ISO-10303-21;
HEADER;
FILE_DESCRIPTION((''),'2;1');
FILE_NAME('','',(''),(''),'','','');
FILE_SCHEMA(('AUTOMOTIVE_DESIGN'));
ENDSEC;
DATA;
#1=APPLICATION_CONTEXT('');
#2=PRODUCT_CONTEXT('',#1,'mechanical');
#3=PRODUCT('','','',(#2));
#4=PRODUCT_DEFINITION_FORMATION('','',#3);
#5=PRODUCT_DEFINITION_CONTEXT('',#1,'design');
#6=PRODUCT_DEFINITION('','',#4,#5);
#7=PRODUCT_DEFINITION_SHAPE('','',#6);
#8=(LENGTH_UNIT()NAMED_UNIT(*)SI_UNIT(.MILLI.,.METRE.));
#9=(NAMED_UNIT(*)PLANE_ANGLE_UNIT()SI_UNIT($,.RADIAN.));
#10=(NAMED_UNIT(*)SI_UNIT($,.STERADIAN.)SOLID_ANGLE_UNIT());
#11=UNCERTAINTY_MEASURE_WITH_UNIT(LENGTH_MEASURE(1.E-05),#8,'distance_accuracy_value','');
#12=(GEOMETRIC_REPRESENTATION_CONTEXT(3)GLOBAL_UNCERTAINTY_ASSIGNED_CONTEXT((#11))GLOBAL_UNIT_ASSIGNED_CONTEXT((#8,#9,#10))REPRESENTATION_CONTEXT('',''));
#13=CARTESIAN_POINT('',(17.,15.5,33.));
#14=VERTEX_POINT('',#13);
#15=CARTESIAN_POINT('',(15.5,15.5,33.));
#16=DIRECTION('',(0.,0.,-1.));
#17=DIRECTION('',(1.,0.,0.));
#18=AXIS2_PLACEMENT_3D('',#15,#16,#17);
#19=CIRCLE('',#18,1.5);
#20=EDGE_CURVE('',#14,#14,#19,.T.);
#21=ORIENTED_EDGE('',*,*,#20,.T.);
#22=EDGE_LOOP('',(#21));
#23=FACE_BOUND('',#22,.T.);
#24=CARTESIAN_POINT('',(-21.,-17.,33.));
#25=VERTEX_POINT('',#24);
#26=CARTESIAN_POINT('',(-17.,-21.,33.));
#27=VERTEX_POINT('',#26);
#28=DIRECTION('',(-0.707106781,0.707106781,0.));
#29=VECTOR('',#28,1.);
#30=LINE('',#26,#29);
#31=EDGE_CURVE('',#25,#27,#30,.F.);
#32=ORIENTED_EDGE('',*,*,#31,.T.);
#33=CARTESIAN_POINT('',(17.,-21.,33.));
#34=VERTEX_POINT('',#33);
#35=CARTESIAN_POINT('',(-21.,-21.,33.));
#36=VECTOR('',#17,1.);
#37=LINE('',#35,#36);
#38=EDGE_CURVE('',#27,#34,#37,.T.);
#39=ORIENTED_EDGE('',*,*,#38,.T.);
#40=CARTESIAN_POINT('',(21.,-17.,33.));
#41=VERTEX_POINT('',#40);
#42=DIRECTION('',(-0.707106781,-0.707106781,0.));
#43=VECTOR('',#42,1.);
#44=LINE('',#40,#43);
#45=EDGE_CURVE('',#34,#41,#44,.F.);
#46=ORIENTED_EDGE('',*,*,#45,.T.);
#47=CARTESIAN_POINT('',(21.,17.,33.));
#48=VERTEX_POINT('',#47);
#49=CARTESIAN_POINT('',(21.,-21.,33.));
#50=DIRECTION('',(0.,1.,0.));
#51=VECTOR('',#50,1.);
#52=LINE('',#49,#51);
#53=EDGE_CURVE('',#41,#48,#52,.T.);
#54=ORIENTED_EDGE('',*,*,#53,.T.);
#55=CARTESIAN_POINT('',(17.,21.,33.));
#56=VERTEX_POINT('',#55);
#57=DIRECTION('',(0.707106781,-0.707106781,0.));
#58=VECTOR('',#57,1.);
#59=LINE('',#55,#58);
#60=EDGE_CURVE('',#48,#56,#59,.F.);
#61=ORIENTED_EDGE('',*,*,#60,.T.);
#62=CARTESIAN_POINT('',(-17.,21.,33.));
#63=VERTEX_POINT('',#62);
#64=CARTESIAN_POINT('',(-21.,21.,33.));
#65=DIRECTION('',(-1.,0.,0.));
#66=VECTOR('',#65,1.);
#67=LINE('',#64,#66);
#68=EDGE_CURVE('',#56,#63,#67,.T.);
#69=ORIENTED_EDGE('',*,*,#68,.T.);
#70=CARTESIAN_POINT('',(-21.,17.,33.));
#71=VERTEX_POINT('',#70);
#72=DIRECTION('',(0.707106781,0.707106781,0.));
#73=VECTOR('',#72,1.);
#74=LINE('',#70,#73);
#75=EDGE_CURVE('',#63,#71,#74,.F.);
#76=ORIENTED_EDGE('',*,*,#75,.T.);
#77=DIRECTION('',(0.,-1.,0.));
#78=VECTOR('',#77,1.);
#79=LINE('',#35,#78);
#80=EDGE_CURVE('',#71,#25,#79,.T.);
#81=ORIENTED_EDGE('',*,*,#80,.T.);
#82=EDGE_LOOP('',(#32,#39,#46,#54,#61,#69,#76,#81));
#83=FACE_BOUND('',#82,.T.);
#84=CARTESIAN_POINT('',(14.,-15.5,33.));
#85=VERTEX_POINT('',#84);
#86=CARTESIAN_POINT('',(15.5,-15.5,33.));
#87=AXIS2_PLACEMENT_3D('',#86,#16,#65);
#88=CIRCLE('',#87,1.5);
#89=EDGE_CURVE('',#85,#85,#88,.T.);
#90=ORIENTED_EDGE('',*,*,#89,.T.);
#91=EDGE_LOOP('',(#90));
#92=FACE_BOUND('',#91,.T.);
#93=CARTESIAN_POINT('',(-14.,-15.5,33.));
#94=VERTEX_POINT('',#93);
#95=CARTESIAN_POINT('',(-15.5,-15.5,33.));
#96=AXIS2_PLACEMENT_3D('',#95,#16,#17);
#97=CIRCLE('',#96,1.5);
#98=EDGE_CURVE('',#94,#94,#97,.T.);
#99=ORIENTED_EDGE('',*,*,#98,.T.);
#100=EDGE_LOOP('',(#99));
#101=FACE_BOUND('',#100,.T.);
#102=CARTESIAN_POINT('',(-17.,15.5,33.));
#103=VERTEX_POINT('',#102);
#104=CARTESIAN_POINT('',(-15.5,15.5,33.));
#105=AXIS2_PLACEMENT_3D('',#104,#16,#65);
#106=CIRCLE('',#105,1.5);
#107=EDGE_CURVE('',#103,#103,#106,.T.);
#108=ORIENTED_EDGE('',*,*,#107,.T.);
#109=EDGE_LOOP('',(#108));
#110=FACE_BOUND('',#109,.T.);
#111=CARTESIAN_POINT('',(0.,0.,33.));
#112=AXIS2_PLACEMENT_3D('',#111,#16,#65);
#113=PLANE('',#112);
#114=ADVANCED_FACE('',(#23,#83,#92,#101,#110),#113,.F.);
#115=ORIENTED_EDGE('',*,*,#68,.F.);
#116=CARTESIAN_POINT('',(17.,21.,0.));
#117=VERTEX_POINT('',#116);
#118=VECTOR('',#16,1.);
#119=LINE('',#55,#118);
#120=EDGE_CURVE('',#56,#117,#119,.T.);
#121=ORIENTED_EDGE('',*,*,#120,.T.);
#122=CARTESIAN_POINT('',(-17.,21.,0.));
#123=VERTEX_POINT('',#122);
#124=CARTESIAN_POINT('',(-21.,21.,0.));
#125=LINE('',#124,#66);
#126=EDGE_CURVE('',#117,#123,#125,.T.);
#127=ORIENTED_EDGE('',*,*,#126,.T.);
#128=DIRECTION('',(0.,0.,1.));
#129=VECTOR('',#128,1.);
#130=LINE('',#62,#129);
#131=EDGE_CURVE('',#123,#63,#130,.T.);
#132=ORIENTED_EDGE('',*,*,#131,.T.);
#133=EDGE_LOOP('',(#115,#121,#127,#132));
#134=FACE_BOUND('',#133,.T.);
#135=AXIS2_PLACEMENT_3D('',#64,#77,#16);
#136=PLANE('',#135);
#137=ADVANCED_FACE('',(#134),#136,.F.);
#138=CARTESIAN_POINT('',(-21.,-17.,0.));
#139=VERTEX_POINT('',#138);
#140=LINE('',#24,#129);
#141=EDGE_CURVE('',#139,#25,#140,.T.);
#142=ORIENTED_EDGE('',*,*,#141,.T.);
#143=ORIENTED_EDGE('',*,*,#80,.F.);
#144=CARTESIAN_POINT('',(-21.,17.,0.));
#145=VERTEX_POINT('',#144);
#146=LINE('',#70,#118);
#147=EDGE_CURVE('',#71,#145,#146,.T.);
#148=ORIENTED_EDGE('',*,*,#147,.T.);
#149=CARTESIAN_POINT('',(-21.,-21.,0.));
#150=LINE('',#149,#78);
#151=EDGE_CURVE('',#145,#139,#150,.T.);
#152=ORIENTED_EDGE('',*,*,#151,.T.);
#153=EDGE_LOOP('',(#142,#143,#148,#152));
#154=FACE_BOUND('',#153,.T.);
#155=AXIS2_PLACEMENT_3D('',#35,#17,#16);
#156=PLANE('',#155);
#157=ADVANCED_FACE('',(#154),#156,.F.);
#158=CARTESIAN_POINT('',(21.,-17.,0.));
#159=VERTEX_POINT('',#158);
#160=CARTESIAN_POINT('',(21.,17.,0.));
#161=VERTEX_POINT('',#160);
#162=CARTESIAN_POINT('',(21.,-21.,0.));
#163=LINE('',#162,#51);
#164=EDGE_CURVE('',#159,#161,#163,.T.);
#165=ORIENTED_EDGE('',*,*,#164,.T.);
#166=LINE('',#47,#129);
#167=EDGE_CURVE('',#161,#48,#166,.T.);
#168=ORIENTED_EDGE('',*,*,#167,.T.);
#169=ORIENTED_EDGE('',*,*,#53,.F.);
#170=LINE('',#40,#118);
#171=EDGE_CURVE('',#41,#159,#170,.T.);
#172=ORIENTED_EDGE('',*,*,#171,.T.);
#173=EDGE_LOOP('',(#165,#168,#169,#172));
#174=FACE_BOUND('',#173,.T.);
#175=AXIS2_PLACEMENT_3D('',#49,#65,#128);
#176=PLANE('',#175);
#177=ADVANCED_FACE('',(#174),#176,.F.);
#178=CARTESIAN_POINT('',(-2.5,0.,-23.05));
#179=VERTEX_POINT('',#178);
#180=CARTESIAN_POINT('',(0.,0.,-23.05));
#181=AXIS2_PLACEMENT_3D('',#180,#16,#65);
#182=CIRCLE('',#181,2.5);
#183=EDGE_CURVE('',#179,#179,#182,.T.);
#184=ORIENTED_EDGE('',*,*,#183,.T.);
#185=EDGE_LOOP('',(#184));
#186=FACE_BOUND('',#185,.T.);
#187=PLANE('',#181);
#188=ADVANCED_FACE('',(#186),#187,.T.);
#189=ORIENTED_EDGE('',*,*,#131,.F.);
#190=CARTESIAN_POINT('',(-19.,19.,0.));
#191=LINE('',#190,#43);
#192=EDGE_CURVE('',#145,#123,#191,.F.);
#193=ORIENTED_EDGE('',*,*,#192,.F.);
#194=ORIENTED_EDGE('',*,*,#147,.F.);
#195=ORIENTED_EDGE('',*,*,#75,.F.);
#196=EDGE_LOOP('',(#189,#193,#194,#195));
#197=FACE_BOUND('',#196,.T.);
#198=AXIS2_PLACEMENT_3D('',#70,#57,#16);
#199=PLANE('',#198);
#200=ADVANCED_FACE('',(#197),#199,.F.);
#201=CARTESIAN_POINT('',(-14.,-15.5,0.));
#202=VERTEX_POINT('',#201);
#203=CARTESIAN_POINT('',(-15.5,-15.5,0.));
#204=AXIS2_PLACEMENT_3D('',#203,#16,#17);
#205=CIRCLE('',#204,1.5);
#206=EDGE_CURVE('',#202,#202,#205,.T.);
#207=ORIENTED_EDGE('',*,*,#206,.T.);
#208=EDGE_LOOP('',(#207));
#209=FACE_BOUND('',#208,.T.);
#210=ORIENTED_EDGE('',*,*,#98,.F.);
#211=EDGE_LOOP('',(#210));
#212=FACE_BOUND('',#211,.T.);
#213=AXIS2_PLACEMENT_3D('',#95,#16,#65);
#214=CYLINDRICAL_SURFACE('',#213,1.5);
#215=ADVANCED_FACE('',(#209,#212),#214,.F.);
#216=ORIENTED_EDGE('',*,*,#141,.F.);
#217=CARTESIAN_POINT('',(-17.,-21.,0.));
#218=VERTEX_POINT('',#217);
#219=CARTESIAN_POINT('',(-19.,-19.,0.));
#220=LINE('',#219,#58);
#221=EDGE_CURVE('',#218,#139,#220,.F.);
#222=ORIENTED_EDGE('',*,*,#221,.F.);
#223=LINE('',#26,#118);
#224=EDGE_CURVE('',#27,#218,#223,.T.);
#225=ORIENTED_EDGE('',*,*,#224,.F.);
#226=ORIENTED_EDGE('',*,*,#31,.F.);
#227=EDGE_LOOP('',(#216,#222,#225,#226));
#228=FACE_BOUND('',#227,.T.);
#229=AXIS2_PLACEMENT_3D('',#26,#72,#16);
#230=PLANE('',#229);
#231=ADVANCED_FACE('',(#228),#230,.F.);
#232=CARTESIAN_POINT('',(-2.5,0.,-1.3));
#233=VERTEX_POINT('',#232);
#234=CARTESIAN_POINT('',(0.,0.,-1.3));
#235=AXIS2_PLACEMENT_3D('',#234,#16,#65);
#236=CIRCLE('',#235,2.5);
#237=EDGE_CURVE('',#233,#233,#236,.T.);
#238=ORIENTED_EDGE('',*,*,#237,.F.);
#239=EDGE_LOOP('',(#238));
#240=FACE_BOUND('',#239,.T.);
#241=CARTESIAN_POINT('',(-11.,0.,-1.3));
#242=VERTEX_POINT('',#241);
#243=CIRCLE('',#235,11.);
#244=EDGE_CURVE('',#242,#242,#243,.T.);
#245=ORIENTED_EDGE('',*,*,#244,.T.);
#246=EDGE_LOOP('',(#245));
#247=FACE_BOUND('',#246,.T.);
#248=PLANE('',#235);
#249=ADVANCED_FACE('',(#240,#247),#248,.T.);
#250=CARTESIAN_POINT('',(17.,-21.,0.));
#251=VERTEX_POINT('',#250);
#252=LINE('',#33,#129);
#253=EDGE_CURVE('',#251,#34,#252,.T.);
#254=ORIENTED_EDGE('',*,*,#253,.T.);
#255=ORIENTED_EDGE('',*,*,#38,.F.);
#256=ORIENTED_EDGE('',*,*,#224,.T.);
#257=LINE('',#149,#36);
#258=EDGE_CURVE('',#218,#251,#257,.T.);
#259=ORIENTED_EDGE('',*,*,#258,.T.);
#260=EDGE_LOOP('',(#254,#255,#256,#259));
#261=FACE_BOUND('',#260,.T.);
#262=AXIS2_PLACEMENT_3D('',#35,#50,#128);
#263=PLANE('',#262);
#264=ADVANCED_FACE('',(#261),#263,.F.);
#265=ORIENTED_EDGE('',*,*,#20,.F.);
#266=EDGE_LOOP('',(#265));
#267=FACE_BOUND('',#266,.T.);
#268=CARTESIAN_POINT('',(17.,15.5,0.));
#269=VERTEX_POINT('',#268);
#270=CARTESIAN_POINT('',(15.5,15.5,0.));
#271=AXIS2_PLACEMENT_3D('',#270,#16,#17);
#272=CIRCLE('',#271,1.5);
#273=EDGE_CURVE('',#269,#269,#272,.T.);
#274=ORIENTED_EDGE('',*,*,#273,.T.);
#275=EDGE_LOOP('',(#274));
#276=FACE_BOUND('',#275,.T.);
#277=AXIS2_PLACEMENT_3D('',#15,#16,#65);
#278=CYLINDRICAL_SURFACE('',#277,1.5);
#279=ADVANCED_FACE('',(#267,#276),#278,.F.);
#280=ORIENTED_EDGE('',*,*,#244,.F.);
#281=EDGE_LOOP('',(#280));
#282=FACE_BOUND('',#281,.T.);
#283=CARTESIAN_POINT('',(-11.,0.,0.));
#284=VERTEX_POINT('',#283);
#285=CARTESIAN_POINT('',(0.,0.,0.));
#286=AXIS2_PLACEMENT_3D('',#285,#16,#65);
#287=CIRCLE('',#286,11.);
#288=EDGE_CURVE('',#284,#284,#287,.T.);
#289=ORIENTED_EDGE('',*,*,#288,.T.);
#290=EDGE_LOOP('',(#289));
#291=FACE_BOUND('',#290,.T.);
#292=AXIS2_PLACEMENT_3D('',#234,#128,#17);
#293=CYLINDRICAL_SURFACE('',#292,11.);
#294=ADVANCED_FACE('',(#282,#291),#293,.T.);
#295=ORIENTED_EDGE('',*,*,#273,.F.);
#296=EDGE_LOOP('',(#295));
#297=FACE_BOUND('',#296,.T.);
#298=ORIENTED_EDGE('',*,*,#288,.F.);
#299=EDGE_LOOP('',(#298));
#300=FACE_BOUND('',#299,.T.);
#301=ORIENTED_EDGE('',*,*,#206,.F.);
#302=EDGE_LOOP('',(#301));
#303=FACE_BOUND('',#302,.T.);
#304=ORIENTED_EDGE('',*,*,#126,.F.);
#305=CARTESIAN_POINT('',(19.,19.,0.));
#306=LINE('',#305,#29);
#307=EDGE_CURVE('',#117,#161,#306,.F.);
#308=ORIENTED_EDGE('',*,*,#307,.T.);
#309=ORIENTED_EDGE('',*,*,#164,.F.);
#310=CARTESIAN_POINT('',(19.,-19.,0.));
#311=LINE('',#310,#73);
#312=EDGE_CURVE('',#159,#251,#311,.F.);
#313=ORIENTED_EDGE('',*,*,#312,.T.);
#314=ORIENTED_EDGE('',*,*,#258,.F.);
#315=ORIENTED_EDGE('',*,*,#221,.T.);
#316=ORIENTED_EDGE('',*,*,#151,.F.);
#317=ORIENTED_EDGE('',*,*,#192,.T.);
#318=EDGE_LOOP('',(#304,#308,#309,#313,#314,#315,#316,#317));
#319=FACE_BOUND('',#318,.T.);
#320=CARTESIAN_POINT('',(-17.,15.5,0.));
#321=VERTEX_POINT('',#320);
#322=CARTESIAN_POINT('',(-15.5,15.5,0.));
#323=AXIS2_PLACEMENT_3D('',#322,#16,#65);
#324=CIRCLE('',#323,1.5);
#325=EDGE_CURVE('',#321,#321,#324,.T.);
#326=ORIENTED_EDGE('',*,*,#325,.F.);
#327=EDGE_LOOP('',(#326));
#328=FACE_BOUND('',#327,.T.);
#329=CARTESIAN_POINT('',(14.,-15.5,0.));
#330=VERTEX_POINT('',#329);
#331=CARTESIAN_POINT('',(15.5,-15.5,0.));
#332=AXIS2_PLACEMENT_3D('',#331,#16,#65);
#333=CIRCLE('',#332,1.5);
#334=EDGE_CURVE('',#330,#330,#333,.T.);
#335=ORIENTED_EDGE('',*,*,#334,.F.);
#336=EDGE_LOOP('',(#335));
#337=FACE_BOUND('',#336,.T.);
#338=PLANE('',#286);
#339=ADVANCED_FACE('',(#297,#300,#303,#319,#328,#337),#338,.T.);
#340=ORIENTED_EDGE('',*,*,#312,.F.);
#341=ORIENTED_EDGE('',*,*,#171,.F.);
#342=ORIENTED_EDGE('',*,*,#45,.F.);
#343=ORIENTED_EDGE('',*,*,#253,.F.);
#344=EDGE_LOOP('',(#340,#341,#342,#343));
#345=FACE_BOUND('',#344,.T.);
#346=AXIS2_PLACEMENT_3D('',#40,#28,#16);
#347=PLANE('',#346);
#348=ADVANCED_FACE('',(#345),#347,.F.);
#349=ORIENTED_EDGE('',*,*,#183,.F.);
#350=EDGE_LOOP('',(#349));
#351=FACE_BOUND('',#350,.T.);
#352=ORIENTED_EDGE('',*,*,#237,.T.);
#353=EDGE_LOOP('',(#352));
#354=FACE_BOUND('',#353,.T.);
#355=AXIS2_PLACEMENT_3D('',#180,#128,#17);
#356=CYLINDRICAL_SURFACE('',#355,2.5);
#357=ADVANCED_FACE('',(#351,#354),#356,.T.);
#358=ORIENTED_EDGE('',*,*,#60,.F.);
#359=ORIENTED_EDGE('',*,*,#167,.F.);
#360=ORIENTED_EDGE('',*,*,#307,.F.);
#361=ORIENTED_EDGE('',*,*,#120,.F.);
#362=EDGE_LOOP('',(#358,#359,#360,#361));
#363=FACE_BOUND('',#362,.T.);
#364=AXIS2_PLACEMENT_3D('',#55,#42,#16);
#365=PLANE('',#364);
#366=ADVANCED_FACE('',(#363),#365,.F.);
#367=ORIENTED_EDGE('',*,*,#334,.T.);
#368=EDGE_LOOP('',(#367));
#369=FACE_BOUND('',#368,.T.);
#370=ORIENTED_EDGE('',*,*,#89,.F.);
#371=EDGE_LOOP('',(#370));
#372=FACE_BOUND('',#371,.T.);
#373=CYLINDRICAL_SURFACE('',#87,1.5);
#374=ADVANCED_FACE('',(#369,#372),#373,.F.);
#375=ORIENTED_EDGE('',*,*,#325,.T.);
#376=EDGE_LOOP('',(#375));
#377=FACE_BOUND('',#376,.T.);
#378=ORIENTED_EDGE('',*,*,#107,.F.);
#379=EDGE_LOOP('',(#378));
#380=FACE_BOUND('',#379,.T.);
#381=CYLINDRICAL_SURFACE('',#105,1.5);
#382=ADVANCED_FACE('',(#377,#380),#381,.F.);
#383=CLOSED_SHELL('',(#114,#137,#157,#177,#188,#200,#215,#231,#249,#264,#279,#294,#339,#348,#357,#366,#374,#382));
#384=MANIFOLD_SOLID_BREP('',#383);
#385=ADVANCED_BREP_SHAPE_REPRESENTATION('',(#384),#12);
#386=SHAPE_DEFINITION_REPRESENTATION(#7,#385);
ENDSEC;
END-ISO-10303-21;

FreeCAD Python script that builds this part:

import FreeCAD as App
import Part
import Sketcher
from FreeCAD import Vector
Q = App.Units.Quantity


def edges_at(feature, points):
    """Names of the edges that pass closest to the given points."""
    edges = feature.Shape.Edges
    near = lambda p: min(range(len(edges)), key=lambda i: edges[i].distToShape(Part.Vertex(*p))[0])
    return sorted({f"Edge{near(p) + 1}" for p in points})


def add_polygon(sketch, points):
    """Adds a closed chain of lines whose ends are joined by coincident constraints."""
    first, n = sketch.GeometryCount, len(points)
    for a, b in zip(points, points[1:] + points[:1]):
        sketch.addGeometry(Part.LineSegment(App.Vector(*a, 0), App.Vector(*b, 0)), False)
    for i in range(n):
        sketch.addConstraint(Sketcher.Constraint("Coincident", first + i, 2, first + (i + 1) % n, 1))

doc = App.newDocument("Part")
params = doc.addObject("Spreadsheet::Sheet", "Params")
for row, (alias, value) in enumerate([
    ("sketch1_width", "42 mm"),
    ("pad1_length", "33 mm"),
    ("chamfer_size", "4 mm"),
    ("sketch2_diameter", "22 mm"),
    ("pad2_length", "1.3 mm"),
    ("sketch3_diameter", "5 mm"),
    ("pad3_length", "21.75 mm"),
    ("sketch4_diameter", "3 mm"),
], start=1):
    params.set(f"A{row}", alias)
    params.set(f"B{row}", "=" + value)
    params.setAlias(f"B{row}", alias)

body = doc.addObject("PartDesign::Body", "Body")

# Sketch on XY plane
sketch1 = body.newObject("Sketcher::SketchObject", "Sketch")
sketch1.AttachmentSupport = (doc.getObject("XY_Plane"), [""])
sketch1.MapMode = "FlatFace"
add_polygon(sketch1, [(-21, 21), (-21, -21), (21, -21), (21, 21)])  # lines 0-3
sketch1.addConstraint([
    Sketcher.Constraint("Vertical", 0),
    Sketcher.Constraint("Horizontal", 1),
    Sketcher.Constraint("Vertical", 2),
    Sketcher.Constraint("Horizontal", 3),
    Sketcher.Constraint("Symmetric", 0, 2, 2, 2, -1, 1),
    Sketcher.Constraint("Equal", 3, 0),
    Sketcher.Constraint("DistanceX", 1, 1, 1, 2, Q("42 mm")),
])
sketch1.setExpression("Constraints[10]", "Params.sketch1_width")
pad1 = body.newObject("PartDesign::Pad", "Pad")
pad1.Profile = sketch1
pad1.setExpression("Length", "Params.pad1_length")
doc.recompute()

chamfer = body.newObject("PartDesign::Chamfer", "Chamfer")
chamfer.Base = (pad1, edges_at(pad1, [
    (21, -21, 16.5),
    (-21, -21, 16.5),
    (-21, 21, 16.5),
    (21, 21, 16.5),
]))
chamfer.setExpression("Size", "Params.chamfer_size")

# Sketch on XY plane
sketch2 = body.newObject("Sketcher::SketchObject", "Sketch001")
sketch2.AttachmentSupport = (doc.getObject("XY_Plane"), [""])
sketch2.MapMode = "FlatFace"
sketch2.addGeometry(Part.Circle(Vector(0, 0, 0), Vector(0, 0, 1), 11), False)
sketch2.addConstraint([
    Sketcher.Constraint("Coincident", 0, 3, -1, 1),
    Sketcher.Constraint("Diameter", 0, Q("22 mm")),
])
sketch2.setExpression("Constraints[1]", "Params.sketch2_diameter")
pad2 = body.newObject("PartDesign::Pad", "Pad001")
pad2.Profile = sketch2
pad2.setExpression("Length", "Params.pad2_length")
pad2.Reversed = True

# Sketch on XY plane
sketch3 = body.newObject("Sketcher::SketchObject", "Sketch002")
sketch3.AttachmentSupport = (doc.getObject("XY_Plane"), [""])
sketch3.MapMode = "FlatFace"
sketch3.AttachmentOffset = App.Placement(Vector(0, 0, -1.3), App.Rotation())
sketch3.addGeometry(Part.Circle(Vector(0, 0, 0), Vector(0, 0, 1), 2.5), False)
sketch3.addConstraint([
    Sketcher.Constraint("Coincident", 0, 3, -1, 1),
    Sketcher.Constraint("Diameter", 0, Q("5 mm")),
])
sketch3.setExpression("Constraints[1]", "Params.sketch3_diameter")
pad3 = body.newObject("PartDesign::Pad", "Pad002")
pad3.Profile = sketch3
pad3.setExpression("Length", "Params.pad3_length")
pad3.Reversed = True

# Sketch on XY plane
sketch4 = body.newObject("Sketcher::SketchObject", "Sketch003")
sketch4.AttachmentSupport = (doc.getObject("XY_Plane"), [""])
sketch4.MapMode = "FlatFace"
sketch4.addGeometry([
    Part.Circle(Vector(-15.5, 15.5, 0), Vector(0, 0, 1), 1.5),
    Part.Circle(Vector(15.5, 15.5, 0), Vector(0, 0, 1), 1.5),
    Part.Circle(Vector(15.5, -15.5, 0), Vector(0, 0, 1), 1.5),
    Part.Circle(Vector(-15.5, -15.5, 0), Vector(0, 0, 1), 1.5),
], False)
sketch4.addConstraint([
    Sketcher.Constraint("Equal", 0, 1),
    Sketcher.Constraint("Equal", 1, 2),
    Sketcher.Constraint("Equal", 2, 3),
    Sketcher.Constraint("Symmetric", 0, 3, 2, 3, -1, 1),
    Sketcher.Constraint("Symmetric", 1, 3, 3, 3, -1, 1),
    Sketcher.Constraint("Symmetric", 0, 3, 1, 3, -2),
    Sketcher.Constraint("Diameter", 0, Q("3 mm")),
    Sketcher.Constraint("DistanceX", 0, 3, 1, 3, Q("31 mm")),
    Sketcher.Constraint("DistanceY", 2, 3, 1, 3, Q("31 mm")),
])
sketch4.setExpression("Constraints[6]", "Params.sketch4_diameter")
pocket1 = body.newObject("PartDesign::Pocket", "Pocket")
pocket1.Profile = sketch4
pocket1.Type = "ThroughAll"
pocket1.Reversed = True

doc.recompute()
